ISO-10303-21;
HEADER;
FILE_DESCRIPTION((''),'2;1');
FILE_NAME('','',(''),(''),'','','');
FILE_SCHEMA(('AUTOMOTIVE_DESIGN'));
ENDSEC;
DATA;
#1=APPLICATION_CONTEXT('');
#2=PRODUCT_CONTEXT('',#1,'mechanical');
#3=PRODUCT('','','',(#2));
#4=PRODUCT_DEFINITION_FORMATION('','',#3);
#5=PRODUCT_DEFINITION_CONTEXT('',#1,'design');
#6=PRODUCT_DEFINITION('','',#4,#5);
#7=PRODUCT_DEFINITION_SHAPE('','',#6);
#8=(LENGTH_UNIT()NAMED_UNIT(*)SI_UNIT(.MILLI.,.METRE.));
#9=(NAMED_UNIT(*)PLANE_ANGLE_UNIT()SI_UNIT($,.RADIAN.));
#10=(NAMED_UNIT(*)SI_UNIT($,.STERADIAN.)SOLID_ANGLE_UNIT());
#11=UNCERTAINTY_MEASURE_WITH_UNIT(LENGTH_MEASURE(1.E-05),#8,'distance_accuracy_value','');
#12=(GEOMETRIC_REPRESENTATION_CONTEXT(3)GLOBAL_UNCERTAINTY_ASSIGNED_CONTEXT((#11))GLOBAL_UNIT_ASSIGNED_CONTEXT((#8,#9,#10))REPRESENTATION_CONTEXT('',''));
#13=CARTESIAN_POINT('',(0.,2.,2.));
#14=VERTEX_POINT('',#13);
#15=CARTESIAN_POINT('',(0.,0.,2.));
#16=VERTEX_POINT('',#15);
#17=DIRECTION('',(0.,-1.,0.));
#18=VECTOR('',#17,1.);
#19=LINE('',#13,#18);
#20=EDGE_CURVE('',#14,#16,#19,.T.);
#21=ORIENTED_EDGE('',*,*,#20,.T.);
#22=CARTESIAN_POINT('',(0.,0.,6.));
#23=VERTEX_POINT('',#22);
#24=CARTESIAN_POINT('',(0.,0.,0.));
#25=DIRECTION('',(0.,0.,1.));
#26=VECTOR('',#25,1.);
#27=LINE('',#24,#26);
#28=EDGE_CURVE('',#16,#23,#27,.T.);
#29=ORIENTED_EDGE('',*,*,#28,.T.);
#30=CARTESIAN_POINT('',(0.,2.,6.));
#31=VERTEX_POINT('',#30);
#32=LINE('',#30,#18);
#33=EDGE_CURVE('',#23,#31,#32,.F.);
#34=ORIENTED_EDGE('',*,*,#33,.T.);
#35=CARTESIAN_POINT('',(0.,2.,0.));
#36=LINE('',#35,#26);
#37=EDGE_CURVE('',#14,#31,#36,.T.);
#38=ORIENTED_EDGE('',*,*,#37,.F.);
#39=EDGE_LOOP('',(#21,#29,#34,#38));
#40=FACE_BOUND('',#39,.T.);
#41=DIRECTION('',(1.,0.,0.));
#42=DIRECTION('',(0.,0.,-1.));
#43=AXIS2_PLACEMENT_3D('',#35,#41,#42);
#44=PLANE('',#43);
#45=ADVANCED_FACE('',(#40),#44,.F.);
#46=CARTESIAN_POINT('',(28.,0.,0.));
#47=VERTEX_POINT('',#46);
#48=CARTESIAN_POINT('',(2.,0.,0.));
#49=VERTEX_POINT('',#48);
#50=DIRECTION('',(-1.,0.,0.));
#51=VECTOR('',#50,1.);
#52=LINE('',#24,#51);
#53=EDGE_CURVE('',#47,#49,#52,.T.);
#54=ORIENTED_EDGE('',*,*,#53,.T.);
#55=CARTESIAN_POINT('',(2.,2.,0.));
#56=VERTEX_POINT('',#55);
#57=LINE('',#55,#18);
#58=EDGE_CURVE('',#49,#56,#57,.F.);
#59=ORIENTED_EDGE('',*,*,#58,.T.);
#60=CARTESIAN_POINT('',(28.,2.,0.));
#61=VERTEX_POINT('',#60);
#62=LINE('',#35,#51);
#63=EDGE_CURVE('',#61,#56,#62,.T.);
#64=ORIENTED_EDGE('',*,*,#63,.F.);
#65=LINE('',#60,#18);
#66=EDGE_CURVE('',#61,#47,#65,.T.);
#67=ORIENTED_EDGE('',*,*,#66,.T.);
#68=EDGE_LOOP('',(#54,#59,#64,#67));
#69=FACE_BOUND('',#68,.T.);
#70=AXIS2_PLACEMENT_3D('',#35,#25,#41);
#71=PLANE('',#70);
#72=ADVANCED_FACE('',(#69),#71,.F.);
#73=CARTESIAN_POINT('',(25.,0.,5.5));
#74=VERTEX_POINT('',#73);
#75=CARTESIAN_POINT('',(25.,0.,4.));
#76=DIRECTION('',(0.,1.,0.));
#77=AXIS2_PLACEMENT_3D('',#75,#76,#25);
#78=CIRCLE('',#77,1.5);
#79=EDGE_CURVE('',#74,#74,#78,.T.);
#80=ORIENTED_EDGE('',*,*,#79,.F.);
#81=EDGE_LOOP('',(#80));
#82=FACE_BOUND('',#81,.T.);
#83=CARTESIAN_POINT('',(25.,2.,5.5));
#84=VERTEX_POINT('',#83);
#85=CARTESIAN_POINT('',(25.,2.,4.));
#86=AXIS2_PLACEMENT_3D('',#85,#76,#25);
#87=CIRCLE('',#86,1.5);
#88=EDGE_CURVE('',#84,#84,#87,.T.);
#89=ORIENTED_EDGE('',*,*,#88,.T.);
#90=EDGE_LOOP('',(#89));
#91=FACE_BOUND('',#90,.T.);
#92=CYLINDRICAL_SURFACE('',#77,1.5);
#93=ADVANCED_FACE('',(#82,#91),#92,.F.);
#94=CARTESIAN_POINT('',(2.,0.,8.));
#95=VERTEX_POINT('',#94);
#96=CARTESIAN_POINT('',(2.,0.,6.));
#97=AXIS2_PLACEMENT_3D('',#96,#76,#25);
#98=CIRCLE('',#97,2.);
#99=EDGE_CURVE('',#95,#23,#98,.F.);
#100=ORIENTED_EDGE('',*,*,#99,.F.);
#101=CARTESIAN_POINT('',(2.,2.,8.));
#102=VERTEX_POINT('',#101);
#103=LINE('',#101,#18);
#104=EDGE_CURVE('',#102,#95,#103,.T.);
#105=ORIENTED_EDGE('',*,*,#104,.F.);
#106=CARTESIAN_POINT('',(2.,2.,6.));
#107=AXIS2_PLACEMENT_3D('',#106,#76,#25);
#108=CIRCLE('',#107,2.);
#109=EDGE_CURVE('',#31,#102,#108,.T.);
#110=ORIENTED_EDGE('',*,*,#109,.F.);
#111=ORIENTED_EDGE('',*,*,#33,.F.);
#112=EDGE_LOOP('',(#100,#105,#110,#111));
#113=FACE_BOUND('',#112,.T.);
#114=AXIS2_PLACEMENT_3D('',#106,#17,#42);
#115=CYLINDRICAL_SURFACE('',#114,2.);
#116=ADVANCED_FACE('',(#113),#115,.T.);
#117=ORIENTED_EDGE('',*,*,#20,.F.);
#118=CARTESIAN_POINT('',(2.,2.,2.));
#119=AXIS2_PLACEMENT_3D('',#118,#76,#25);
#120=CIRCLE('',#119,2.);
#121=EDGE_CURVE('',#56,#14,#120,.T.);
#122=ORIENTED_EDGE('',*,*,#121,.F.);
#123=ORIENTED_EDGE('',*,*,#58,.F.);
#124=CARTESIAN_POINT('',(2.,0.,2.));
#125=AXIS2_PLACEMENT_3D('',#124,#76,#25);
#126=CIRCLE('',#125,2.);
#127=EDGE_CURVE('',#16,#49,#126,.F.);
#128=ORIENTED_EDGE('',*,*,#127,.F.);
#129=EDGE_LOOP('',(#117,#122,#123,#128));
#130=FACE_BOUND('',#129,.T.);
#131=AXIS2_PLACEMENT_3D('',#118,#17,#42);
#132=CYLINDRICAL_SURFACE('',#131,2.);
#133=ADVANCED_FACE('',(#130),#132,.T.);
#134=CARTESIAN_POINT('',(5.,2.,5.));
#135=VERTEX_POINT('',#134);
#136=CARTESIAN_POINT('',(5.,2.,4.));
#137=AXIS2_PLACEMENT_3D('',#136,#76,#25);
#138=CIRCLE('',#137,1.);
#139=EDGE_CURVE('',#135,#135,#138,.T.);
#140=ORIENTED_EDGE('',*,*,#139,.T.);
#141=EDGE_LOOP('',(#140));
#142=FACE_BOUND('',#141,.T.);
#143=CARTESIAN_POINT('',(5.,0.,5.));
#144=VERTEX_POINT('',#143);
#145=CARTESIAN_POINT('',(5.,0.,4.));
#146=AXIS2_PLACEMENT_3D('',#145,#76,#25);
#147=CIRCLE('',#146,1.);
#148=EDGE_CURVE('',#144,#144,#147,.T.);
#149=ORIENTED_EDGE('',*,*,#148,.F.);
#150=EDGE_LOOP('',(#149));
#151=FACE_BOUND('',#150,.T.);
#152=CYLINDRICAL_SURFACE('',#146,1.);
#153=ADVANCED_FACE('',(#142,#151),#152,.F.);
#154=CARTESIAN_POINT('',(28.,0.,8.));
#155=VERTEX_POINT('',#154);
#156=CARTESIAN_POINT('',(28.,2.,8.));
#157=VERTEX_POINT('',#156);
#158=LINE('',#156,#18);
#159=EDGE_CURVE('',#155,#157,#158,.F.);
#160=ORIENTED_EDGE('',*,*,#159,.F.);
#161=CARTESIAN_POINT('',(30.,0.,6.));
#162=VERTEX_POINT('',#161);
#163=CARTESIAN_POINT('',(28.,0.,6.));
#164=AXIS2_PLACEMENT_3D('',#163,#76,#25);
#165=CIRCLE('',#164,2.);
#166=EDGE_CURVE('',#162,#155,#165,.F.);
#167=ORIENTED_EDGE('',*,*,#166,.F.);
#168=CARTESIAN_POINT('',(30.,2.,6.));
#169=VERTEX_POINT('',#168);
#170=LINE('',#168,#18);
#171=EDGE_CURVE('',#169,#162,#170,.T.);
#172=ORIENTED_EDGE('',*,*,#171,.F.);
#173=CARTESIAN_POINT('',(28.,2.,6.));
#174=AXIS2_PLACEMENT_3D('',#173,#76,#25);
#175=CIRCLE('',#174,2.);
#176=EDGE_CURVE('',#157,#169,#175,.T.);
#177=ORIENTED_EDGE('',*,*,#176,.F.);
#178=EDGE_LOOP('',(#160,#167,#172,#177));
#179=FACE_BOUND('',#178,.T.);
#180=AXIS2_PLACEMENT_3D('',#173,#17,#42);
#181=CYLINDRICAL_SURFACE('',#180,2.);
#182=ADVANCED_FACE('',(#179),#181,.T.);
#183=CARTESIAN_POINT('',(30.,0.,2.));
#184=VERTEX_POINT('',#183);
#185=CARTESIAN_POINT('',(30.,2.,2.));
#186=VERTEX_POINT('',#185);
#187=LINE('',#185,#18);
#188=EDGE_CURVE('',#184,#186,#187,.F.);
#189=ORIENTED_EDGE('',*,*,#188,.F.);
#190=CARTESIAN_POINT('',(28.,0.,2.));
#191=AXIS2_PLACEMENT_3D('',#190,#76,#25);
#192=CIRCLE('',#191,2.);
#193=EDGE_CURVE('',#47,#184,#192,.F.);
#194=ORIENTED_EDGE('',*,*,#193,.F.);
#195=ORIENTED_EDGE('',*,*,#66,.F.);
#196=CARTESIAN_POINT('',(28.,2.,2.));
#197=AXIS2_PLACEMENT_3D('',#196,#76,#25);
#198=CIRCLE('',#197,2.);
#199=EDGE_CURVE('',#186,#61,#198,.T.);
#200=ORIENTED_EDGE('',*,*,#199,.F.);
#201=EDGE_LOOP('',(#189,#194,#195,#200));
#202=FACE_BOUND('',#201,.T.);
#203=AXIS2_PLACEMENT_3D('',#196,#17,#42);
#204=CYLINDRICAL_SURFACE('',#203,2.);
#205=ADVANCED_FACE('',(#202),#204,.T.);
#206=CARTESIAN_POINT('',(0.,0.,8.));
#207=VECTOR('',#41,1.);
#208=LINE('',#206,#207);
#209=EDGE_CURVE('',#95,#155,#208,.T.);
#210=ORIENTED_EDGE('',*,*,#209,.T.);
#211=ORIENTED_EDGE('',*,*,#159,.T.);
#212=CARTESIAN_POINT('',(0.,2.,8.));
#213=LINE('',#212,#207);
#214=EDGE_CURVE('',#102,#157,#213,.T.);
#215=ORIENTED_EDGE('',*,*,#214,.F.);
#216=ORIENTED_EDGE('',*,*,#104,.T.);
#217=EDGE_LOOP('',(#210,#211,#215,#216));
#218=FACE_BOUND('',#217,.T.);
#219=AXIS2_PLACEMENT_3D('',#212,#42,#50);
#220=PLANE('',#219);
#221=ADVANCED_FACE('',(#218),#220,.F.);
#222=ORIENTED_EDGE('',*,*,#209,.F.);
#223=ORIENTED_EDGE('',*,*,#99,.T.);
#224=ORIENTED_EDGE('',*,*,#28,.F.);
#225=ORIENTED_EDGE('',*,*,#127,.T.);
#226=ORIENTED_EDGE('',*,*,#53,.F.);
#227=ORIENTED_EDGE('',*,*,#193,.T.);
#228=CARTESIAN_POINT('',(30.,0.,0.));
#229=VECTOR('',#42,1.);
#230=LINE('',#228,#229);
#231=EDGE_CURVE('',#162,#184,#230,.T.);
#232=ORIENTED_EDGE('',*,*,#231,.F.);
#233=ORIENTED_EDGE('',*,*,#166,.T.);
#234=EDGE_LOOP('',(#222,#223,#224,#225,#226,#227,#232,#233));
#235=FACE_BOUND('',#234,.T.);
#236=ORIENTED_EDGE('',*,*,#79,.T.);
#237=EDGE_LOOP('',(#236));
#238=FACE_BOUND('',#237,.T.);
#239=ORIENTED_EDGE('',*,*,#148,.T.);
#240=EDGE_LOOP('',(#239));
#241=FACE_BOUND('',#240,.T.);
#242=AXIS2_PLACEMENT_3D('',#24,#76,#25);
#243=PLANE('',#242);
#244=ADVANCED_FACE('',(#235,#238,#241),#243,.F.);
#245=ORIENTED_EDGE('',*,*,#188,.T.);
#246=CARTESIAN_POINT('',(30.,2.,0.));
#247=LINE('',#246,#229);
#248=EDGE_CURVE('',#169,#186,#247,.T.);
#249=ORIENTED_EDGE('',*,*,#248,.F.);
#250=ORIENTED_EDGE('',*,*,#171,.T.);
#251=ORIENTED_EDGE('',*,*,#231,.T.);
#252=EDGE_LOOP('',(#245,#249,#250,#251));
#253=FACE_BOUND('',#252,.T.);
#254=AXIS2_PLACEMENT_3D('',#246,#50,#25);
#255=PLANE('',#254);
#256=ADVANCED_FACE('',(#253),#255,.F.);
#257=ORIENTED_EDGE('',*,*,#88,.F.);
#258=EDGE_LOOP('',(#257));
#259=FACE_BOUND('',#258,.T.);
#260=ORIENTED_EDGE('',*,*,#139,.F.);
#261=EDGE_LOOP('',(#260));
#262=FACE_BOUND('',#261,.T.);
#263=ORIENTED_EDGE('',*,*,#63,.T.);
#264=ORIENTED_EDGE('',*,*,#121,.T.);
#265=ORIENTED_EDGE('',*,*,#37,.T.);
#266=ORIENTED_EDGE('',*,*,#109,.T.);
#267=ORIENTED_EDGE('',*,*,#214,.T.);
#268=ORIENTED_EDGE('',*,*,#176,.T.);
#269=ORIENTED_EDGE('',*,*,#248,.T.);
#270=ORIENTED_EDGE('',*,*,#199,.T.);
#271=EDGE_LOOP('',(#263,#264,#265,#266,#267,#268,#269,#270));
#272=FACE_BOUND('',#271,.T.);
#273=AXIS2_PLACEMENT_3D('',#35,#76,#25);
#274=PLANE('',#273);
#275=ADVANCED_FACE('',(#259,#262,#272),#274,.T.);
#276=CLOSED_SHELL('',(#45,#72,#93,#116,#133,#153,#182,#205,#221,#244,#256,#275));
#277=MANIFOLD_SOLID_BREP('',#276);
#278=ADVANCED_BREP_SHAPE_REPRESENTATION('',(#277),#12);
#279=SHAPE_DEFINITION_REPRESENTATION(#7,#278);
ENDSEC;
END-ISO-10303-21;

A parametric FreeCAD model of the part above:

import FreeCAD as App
import Part
import Sketcher
from FreeCAD import Vector
Q = App.Units.Quantity


def edges_at(feature, points):
    """Names of the edges that pass closest to the given points."""
    edges = feature.Shape.Edges
    near = lambda p: min(range(len(edges)), key=lambda i: edges[i].distToShape(Part.Vertex(*p))[0])
    return sorted({f"Edge{near(p) + 1}" for p in points})


def add_polygon(sketch, points):
    """Adds a closed chain of lines whose ends are joined by coincident constraints."""
    first, n = sketch.GeometryCount, len(points)
    for a, b in zip(points, points[1:] + points[:1]):
        sketch.addGeometry(Part.LineSegment(App.Vector(*a, 0), App.Vector(*b, 0)), False)
    for i in range(n):
        sketch.addConstraint(Sketcher.Constraint("Coincident", first + i, 2, first + (i + 1) % n, 1))

doc = App.newDocument("Part")
body = doc.addObject("PartDesign::Body", "Body")

sketch1 = body.newObject("Sketcher::SketchObject", "Sketch")
sketch1.AttachmentSupport = (doc.getObject("XZ_Plane"), [""])
sketch1.MapMode = "FlatFace"
add_polygon(sketch1, [(0, 0), (0, 8), (30, 8), (30, 0)])
sketch1.addConstraint(Sketcher.Constraint("Vertical", 0))
sketch1.addConstraint(Sketcher.Constraint("Horizontal", 1))
sketch1.addConstraint(Sketcher.Constraint("Vertical", 2))
sketch1.addConstraint(Sketcher.Constraint("Horizontal", 3))
sketch1.addConstraint(Sketcher.Constraint("Coincident", 3, 2, -1, 1))
sketch1.addConstraint(Sketcher.Constraint("DistanceX", 1, 1, 1, 2, Q("30 mm")))
sketch1.addConstraint(Sketcher.Constraint("DistanceY", 0, 1, 0, 2, Q("8 mm")))
pad1 = body.newObject("PartDesign::Pad", "Pad")
pad1.Profile = sketch1
pad1.Length = 2
pad1.Reversed = True

sketch2 = body.newObject("Sketcher::SketchObject", "Sketch001")
sketch2.AttachmentSupport = (doc.getObject("XZ_Plane"), [""])
sketch2.MapMode = "FlatFace"
sketch2.AttachmentOffset = App.Placement(Vector(0, 0, -2), App.Rotation())
sketch2.addGeometry(Part.Circle(Vector(25, 4, 0), Vector(0, 0, 1), 1.5), False)
sketch2.addConstraint(Sketcher.Constraint("Diameter", 0, Q("3 mm")))
sketch2.addConstraint(Sketcher.Constraint("DistanceX", -1, 1, 0, 3, Q("25 mm")))
sketch2.addConstraint(Sketcher.Constraint("DistanceY", -1, 1, 0, 3, Q("4 mm")))
pocket1 = body.newObject("PartDesign::Pocket", "Pocket")
pocket1.Profile = sketch2
pocket1.Type = "ThroughAll"
pocket1.Reversed = True

sketch3 = body.newObject("Sketcher::SketchObject", "Sketch002")
sketch3.AttachmentSupport = (doc.getObject("XZ_Plane"), [""])
sketch3.MapMode = "FlatFace"
sketch3.AttachmentOffset = App.Placement(Vector(0, 0, -2), App.Rotation())
sketch3.addGeometry(Part.Circle(Vector(5, 4, 0), Vector(0, 0, 1), 1), False)
sketch3.addConstraint(Sketcher.Constraint("Diameter", 0, Q("2 mm")))
sketch3.addConstraint(Sketcher.Constraint("DistanceX", -1, 1, 0, 3, Q("5 mm")))
sketch3.addConstraint(Sketcher.Constraint("DistanceY", -1, 1, 0, 3, Q("4 mm")))
pocket2 = body.newObject("PartDesign::Pocket", "Pocket001")
pocket2.Profile = sketch3
pocket2.Type = "ThroughAll"
pocket2.Reversed = True
doc.recompute()

fillet = body.newObject("PartDesign::Fillet", "Fillet")
fillet.Base = (pocket2, edges_at(pocket2, [
    (0, 1, 0),
    (30, 1, 0),
    (30, 1, 8),
    (0, 1, 8),
]))
fillet.Radius = 2

doc.recompute()
